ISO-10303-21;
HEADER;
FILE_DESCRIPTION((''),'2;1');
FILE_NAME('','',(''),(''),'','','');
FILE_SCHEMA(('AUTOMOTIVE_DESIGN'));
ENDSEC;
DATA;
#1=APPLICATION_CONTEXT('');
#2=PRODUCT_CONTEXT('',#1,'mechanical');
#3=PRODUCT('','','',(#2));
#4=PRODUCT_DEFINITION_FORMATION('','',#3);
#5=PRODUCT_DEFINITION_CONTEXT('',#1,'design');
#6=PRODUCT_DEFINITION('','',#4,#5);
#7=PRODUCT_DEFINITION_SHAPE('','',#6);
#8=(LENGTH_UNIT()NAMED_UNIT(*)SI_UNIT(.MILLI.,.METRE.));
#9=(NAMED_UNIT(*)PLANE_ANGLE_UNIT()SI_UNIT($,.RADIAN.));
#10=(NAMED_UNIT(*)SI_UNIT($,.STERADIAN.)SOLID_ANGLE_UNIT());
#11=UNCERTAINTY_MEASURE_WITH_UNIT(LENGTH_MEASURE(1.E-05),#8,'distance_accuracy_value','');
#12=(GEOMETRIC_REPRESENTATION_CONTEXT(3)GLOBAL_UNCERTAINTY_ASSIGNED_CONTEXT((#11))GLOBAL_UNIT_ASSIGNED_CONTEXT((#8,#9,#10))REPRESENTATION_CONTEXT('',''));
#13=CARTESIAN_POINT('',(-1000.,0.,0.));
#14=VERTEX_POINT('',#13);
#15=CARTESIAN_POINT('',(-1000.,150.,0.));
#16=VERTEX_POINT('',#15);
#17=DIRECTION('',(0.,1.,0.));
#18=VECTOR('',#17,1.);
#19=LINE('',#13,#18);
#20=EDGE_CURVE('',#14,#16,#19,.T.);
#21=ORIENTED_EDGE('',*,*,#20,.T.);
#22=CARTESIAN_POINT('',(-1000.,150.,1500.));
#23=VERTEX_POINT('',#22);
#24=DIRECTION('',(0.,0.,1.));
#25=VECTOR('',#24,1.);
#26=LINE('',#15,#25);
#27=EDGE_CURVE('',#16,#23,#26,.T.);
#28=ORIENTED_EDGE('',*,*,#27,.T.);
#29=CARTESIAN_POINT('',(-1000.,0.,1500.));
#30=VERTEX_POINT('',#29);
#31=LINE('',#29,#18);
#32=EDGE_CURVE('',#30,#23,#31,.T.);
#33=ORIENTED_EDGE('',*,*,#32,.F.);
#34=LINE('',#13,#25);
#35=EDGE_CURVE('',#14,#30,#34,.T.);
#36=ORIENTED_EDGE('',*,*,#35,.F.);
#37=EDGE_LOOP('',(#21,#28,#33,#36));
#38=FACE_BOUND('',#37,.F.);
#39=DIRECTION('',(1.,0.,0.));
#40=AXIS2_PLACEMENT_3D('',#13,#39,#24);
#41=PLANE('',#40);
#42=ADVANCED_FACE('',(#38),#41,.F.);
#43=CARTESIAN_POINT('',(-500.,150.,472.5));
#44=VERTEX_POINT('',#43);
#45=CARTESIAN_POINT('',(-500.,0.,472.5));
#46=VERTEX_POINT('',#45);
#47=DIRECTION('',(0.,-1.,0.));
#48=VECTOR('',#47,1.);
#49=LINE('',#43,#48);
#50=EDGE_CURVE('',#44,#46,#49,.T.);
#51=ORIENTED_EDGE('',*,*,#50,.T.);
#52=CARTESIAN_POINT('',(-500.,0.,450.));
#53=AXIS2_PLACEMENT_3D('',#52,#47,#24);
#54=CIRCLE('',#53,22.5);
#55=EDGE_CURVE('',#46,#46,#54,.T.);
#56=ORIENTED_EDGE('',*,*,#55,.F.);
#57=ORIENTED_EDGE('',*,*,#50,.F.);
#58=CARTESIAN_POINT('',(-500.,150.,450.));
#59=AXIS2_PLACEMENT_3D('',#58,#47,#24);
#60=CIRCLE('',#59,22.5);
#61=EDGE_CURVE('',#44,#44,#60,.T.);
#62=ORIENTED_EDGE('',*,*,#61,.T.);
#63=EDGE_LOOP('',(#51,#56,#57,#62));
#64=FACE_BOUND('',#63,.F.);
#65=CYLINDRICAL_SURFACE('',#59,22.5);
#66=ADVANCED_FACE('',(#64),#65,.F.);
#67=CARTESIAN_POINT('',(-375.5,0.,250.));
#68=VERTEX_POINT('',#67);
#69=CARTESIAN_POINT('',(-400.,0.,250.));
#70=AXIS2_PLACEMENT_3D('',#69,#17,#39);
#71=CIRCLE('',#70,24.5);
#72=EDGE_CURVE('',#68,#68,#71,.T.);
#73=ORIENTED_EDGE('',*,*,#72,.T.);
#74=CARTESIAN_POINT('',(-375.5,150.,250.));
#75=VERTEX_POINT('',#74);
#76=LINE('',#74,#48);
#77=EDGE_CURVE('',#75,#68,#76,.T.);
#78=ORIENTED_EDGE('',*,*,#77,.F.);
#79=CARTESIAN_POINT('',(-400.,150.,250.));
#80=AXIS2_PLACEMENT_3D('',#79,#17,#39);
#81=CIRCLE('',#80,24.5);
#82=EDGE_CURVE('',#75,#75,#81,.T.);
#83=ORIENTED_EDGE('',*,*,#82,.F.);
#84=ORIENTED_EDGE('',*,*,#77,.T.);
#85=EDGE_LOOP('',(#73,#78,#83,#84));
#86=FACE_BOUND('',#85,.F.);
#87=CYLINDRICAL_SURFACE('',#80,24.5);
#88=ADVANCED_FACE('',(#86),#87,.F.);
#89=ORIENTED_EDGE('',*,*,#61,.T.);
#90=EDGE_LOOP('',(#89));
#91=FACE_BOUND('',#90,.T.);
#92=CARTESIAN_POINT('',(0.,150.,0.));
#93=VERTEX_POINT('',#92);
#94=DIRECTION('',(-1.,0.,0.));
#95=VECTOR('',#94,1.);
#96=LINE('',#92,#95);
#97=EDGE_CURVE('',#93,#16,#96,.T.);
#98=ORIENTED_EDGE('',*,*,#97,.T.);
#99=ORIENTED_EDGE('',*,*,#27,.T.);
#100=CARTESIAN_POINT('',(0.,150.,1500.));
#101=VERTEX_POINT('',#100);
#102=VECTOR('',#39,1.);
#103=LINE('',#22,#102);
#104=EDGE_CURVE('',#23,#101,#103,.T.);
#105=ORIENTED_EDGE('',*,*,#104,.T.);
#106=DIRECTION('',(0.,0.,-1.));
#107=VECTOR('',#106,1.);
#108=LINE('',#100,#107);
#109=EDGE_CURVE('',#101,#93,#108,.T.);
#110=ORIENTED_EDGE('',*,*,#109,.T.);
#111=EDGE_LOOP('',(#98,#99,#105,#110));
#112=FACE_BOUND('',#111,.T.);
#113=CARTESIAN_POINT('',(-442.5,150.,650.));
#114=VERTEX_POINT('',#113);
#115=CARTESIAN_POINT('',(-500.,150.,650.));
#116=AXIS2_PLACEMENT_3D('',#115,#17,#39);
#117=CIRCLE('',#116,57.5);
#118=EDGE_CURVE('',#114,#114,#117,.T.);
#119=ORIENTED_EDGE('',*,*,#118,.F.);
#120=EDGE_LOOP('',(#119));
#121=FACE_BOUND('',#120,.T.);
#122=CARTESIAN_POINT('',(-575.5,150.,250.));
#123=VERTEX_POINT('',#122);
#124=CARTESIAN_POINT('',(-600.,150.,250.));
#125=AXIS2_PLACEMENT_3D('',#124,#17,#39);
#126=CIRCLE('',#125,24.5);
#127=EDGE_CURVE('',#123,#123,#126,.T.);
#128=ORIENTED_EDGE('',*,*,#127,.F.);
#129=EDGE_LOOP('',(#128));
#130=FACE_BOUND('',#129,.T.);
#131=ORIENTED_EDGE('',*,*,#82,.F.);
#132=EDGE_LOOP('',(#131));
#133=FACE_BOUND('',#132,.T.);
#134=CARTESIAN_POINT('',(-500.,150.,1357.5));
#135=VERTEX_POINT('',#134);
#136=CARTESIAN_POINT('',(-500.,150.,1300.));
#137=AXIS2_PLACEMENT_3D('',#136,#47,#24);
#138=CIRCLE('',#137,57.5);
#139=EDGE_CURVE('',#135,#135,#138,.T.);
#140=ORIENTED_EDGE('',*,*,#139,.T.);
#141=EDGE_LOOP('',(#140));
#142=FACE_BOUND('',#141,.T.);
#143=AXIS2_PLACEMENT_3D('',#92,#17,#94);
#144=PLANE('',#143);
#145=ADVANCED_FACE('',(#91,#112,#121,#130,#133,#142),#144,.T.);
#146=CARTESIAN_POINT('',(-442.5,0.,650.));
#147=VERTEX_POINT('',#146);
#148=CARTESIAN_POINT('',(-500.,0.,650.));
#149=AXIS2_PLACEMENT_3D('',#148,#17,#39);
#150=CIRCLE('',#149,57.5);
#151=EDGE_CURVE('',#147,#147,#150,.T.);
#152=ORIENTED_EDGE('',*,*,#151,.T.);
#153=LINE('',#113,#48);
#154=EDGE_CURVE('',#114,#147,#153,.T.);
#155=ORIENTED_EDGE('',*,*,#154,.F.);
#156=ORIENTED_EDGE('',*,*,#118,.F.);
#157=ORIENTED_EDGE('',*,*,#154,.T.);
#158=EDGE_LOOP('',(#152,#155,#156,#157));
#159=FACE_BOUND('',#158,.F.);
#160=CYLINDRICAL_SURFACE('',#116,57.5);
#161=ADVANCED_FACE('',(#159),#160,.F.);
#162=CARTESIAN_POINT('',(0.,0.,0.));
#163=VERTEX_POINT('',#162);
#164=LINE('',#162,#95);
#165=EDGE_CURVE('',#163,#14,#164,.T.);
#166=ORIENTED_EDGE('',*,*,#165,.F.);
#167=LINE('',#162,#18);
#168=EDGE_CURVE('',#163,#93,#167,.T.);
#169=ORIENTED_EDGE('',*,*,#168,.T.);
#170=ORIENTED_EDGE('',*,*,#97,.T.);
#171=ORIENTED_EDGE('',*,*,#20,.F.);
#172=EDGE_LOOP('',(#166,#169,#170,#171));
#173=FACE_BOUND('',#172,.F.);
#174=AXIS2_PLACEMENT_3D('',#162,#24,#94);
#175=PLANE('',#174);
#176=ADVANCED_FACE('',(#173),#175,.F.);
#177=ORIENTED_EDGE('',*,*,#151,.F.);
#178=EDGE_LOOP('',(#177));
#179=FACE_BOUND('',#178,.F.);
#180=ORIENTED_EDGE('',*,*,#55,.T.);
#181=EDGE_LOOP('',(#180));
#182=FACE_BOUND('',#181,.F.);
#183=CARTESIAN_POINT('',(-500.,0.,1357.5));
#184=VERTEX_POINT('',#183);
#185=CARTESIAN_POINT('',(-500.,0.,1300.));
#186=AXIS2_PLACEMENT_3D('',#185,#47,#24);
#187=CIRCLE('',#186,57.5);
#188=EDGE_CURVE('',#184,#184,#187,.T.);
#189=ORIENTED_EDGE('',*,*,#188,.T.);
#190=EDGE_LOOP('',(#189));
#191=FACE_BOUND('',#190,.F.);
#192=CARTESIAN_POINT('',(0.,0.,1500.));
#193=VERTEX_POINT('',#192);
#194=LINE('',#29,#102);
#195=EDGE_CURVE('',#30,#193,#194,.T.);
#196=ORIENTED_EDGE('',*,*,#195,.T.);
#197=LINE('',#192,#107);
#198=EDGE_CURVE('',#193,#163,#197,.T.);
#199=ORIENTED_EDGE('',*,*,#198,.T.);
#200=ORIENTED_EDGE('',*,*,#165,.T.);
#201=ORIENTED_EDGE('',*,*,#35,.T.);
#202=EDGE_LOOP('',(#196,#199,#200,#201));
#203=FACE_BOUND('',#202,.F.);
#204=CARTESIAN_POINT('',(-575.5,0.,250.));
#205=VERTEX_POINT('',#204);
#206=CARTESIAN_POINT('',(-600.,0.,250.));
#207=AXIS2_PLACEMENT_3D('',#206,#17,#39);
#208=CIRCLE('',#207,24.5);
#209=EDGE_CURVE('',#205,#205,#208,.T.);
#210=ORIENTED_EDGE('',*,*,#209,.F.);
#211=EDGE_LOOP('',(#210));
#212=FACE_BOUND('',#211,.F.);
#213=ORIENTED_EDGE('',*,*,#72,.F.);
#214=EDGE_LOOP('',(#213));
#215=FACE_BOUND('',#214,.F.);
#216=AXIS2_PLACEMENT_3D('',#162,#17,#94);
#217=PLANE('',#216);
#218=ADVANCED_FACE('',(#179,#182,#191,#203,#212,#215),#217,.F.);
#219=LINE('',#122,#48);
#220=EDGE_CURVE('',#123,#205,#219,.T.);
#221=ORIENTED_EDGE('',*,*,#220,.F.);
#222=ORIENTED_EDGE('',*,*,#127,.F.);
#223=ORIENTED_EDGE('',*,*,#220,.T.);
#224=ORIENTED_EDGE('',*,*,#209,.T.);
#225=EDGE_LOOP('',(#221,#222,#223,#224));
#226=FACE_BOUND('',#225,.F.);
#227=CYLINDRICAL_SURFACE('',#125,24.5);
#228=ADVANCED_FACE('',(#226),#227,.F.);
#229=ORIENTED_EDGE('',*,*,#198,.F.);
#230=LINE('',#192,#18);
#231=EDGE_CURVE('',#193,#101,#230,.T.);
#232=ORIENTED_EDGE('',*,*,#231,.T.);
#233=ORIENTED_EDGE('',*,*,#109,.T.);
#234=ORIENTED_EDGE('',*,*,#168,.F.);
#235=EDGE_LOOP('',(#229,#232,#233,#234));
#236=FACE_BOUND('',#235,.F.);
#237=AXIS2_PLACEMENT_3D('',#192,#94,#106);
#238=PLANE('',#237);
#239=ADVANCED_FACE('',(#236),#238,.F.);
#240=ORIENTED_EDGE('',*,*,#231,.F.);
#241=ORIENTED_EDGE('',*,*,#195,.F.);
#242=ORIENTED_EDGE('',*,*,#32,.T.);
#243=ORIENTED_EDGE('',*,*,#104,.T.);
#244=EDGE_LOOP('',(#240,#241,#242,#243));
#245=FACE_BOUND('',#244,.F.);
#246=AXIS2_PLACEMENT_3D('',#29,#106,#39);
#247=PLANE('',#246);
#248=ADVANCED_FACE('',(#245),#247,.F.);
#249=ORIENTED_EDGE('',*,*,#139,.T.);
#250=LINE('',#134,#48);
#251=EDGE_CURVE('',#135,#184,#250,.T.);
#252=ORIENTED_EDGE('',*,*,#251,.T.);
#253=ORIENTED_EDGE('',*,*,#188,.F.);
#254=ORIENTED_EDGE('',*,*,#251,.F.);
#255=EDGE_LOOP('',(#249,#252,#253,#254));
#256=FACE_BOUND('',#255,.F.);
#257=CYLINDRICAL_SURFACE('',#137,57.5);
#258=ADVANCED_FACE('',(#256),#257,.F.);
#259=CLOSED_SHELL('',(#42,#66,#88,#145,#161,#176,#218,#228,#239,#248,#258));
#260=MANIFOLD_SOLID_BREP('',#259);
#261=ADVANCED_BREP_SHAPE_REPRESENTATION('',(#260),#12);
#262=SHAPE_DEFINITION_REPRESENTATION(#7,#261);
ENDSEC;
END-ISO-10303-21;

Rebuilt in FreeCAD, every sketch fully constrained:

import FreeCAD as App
import Part
import Sketcher
Q = App.Units.Quantity


def add_polygon(sketch, points):
    """Adds a closed chain of lines whose ends are joined by coincident constraints."""
    first, n = sketch.GeometryCount, len(points)
    for a, b in zip(points, points[1:] + points[:1]):
        sketch.addGeometry(Part.LineSegment(App.Vector(*a, 0), App.Vector(*b, 0)), False)
    for i in range(n):
        sketch.addConstraint(Sketcher.Constraint("Coincident", first + i, 2, first + (i + 1) % n, 1))

doc = App.newDocument("Part")
body = doc.addObject("PartDesign::Body", "Body")

sketch1 = body.newObject("Sketcher::SketchObject", "Sketch")
sketch1.AttachmentSupport = (doc.getObject("XZ_Plane"), [""])
sketch1.MapMode = "FlatFace"
add_polygon(sketch1, [(0, 1500), (0, 0), (-1000, 0), (-1000, 1500)])
sketch1.addConstraint([
    Sketcher.Constraint("Vertical", 0),
    Sketcher.Constraint("Horizontal", 1),
    Sketcher.Constraint("Vertical", 2),
    Sketcher.Constraint("Horizontal", 3),
    Sketcher.Constraint("Coincident", 0, 2, -1, 1),
    Sketcher.Constraint("DistanceX", 1, 2, 1, 1, Q("1000 mm")),
    Sketcher.Constraint("DistanceY", 0, 2, 0, 1, Q("1500 mm")),
])
pad1 = body.newObject("PartDesign::Pad", "Pad")
pad1.Profile = sketch1
pad1.Length = 150
pad1.Reversed = True

sketch2 = body.newObject("Sketcher::SketchObject", "Sketch001")
sketch2.AttachmentSupport = (doc.getObject("XZ_Plane"), [""])
sketch2.MapMode = "FlatFace"
sketch2.AttachmentOffset = App.Placement(App.Vector(0, 0, -150), App.Rotation())
sketch2.addGeometry(Part.Circle(App.Vector(-500, 650, 0), App.Vector(0, 0, 1), 58), False)
sketch2.addConstraint([
    Sketcher.Constraint("Diameter", 0, Q("115 mm")),
    Sketcher.Constraint("DistanceY", -1, 1, 0, 3, Q("650 mm")),
    Sketcher.Constraint("DistanceX", 0, 3, -1, 1, Q("500 mm")),
])
pocket1 = body.newObject("PartDesign::Pocket", "Pocket")
pocket1.Profile = sketch2
pocket1.Type = "ThroughAll"
pocket1.Reversed = True

sketch3 = body.newObject("Sketcher::SketchObject", "Sketch002")
sketch3.AttachmentSupport = (doc.getObject("XZ_Plane"), [""])
sketch3.MapMode = "FlatFace"
sketch3.AttachmentOffset = App.Placement(App.Vector(0, 0, -150), App.Rotation())
sketch3.addGeometry([
    Part.Circle(App.Vector(-400, 250, 0), App.Vector(0, 0, 1), 24),
    Part.Circle(App.Vector(-600, 250, 0), App.Vector(0, 0, 1), 24),
], False)
sketch3.addConstraint([
    Sketcher.Constraint("Equal", 0, 1),
    Sketcher.Constraint("Horizontal", 0, 3, 1, 3),
    Sketcher.Constraint("Diameter", 0, Q("49 mm")),
    Sketcher.Constraint("DistanceY", -1, 1, 0, 3, Q("250 mm")),
    Sketcher.Constraint("DistanceX", 0, 3, -1, 1, Q("400 mm")),
    Sketcher.Constraint("DistanceX", 1, 3, -1, 1, Q("600 mm")),
])
pocket2 = body.newObject("PartDesign::Pocket", "Pocket001")
pocket2.Profile = sketch3
pocket2.Length = 254
pocket2.Reversed = True

sketch4 = body.newObject("Sketcher::SketchObject", "Sketch003")
sketch4.AttachmentSupport = (doc.getObject("XZ_Plane"), [""])
sketch4.MapMode = "FlatFace"
sketch4.AttachmentOffset = App.Placement(App.Vector(0, 0, -150), App.Rotation())
sketch4.addGeometry(Part.Circle(App.Vector(-500, 450, 0), App.Vector(0, 0, 1), 22), False)
sketch4.addConstraint([
    Sketcher.Constraint("Diameter", 0, Q("45 mm")),
    Sketcher.Constraint("DistanceX", 0, 3, -1, 1, Q("500 mm")),
    Sketcher.Constraint("DistanceY", -1, 1, 0, 3, Q("450 mm")),
])
doc.recompute()
hole = body.newObject("PartDesign::Hole", "Hole")
hole.Profile = sketch4
hole.ThreadType = "None"
hole.Diameter = 45
hole.DepthType = "ThroughAll"
hole.Reversed = True

sketch5 = body.newObject("Sketcher::SketchObject", "Sketch004")
sketch5.AttachmentSupport = (doc.getObject("XZ_Plane"), [""])
sketch5.MapMode = "FlatFace"
sketch5.AttachmentOffset = App.Placement(App.Vector(0, 0, -150), App.Rotation())
sketch5.addGeometry(Part.Circle(App.Vector(-500, 1300, 0), App.Vector(0, 0, 1), 58), False)
sketch5.addConstraint([
    Sketcher.Constraint("Diameter", 0, Q("115 mm")),
    Sketcher.Constraint("DistanceX", 0, 3, -1, 1, Q("500 mm")),
    Sketcher.Constraint("DistanceY", -1, 1, 0, 3, Q("1300 mm")),
])
doc.recompute()
hole2 = body.newObject("PartDesign::Hole", "Hole001")
hole2.Profile = sketch5
hole2.ThreadType = "None"
hole2.Diameter = 115
hole2.DepthType = "ThroughAll"
hole2.Reversed = True

doc.recompute()
